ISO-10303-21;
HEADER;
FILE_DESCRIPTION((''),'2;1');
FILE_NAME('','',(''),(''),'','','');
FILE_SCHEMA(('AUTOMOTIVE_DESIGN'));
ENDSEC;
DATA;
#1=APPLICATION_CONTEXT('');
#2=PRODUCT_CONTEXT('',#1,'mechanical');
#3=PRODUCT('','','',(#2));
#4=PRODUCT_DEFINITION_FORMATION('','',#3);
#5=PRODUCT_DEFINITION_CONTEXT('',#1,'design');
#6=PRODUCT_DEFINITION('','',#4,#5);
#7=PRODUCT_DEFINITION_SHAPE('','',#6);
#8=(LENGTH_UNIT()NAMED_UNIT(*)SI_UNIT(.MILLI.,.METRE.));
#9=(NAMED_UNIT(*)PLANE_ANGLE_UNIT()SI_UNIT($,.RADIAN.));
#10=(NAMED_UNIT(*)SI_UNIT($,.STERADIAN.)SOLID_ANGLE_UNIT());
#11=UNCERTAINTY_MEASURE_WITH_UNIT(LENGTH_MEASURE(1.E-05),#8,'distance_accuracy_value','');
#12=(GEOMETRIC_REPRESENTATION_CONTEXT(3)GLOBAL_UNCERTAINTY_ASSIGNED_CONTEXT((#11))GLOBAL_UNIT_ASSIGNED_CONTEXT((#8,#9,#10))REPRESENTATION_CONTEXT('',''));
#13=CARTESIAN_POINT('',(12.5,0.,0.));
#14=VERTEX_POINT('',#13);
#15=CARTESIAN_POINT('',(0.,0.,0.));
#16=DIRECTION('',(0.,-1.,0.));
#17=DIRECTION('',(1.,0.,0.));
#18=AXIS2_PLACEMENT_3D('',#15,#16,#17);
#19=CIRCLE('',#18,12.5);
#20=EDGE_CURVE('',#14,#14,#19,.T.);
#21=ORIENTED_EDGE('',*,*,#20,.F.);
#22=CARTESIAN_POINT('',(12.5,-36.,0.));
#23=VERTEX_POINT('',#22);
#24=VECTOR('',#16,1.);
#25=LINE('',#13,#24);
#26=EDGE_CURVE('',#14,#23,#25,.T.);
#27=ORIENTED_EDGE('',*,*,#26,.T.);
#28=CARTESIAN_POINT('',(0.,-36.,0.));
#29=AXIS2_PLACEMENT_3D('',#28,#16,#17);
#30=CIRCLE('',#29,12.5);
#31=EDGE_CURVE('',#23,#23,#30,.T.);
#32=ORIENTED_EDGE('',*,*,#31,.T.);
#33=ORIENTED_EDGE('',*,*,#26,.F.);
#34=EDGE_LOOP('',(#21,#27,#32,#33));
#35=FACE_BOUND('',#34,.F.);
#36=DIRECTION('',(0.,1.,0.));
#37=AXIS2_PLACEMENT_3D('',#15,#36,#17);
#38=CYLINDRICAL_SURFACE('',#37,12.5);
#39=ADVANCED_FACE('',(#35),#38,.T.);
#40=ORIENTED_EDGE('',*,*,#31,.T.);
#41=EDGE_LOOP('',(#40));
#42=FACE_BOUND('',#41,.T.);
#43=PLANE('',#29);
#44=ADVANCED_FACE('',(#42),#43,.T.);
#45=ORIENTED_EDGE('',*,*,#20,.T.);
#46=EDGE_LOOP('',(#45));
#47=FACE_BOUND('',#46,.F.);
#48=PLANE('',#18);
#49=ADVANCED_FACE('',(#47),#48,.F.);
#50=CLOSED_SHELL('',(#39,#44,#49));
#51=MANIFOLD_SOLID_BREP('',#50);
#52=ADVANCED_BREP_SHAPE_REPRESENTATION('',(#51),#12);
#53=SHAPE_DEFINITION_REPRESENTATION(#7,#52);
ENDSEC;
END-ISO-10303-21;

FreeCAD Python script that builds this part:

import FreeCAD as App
import Part
import Sketcher

V = App.Vector
Q = App.Units.Quantity

doc = App.newDocument("Part")
body = doc.addObject("PartDesign::Body", "Body")

sketch1 = doc.addObject("Sketcher::SketchObject", "Sketch")
body.addObject(sketch1)
sketch1.AttachmentSupport = (doc.XZ_Plane, [""])
sketch1.MapMode = "FlatFace"
sketch1.addGeometry(Part.Circle(V(0, 0, 0), V(0, 0, 1), 12), False)
sketch1.addConstraint([
    Sketcher.Constraint("Coincident", 0, 3, -1, 1),
    Sketcher.Constraint("Diameter", 0, Q("25 mm")),
])
pad1 = doc.addObject("PartDesign::Pad", "Pad")
body.addObject(pad1)
pad1.Profile = sketch1
pad1.Length = 36

doc.recompute()
